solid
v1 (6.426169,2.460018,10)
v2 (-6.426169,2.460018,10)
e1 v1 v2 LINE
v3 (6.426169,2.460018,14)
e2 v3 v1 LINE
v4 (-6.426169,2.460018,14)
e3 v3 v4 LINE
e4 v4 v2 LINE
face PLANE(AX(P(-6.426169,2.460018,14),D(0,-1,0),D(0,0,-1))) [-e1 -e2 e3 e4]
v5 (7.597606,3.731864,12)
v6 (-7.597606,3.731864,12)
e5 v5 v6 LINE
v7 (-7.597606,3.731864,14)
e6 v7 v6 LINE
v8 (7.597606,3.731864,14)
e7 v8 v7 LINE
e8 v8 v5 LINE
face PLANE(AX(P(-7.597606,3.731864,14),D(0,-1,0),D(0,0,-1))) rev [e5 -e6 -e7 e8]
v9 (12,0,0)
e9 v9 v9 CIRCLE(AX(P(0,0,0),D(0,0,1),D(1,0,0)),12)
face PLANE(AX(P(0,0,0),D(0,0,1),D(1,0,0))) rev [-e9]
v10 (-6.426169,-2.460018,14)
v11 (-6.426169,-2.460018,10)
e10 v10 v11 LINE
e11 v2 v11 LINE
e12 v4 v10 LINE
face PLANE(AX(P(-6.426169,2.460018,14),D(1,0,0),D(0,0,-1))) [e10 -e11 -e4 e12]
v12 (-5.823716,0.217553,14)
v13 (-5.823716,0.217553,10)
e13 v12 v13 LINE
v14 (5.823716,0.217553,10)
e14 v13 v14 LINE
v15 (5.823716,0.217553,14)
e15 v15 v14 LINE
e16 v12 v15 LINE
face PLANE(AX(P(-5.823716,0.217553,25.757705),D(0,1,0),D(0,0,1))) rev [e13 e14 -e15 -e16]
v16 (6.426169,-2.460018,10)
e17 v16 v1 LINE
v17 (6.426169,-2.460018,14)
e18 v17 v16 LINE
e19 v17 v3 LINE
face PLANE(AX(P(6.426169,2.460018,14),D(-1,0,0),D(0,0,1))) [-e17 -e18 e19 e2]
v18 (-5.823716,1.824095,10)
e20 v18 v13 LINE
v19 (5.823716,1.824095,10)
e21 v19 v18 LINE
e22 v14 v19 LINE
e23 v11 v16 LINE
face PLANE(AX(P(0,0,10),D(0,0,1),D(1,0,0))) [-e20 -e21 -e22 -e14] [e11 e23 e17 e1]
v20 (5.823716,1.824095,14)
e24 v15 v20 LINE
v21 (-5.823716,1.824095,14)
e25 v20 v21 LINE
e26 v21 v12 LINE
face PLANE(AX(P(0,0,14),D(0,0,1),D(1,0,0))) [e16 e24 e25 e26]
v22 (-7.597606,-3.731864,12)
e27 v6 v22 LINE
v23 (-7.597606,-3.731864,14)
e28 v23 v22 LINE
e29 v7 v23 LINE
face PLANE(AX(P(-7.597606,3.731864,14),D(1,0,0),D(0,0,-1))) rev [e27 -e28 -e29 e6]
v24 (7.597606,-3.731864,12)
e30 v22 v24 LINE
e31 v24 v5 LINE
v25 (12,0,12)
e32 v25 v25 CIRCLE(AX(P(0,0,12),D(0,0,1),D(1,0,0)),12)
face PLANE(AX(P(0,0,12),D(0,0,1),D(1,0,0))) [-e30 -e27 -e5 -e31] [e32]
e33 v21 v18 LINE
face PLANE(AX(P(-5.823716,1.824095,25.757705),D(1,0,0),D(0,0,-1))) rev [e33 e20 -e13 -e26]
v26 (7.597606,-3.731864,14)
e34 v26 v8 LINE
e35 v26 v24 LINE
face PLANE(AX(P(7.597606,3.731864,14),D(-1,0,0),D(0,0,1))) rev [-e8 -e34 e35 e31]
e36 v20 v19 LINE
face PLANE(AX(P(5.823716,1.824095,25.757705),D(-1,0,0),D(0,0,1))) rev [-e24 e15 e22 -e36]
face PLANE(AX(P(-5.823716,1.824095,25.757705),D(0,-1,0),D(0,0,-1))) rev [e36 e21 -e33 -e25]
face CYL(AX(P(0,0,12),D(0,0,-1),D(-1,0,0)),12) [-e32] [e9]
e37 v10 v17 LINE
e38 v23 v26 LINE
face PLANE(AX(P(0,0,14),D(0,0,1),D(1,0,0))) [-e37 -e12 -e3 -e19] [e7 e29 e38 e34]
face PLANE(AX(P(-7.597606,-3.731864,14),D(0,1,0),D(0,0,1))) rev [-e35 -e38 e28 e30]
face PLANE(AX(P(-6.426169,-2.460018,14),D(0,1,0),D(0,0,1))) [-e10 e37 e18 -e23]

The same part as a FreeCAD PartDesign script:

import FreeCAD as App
import Part
import Sketcher

V = App.Vector
Q = App.Units.Quantity

doc = App.newDocument("Part")
body = doc.addObject("PartDesign::Body", "Body")

# Sketch on XY plane
sketch1 = body.newObject("Sketcher::SketchObject", "Sketch")
sketch1.AttachmentSupport = (doc.getObject("XY_Plane"), [""])
sketch1.MapMode = "FlatFace"
sketch1.addGeometry(Part.Circle(V(0, 0, 0), V(0, 0, 1), 12), False)
sketch1.addConstraint([
    Sketcher.Constraint("Coincident", 0, 3, -1, 1),
    Sketcher.Constraint("Diameter", 0, Q("24 mm")),
])
pad1 = body.newObject("PartDesign::Pad", "Pad")
pad1.Profile = sketch1
pad1.Length = 12

# Sketch on XY plane
sketch2 = body.newObject("Sketcher::SketchObject", "Sketch001")
sketch2.AttachmentSupport = (doc.getObject("XY_Plane"), [""])
sketch2.MapMode = "FlatFace"
sketch2.AttachmentOffset = App.Placement(V(0, 0, 12), App.Rotation())
sketch2.addGeometry([
    Part.LineSegment(V(-7.597606, 3.731864, 0), V(-7.597606, -3.731864, 0)),  # 0
    Part.LineSegment(V(-7.597606, -3.731864, 0), V(7.597606, -3.731864, 0)),  # 1
    Part.LineSegment(V(7.597606, -3.731864, 0), V(7.597606, 3.731864, 0)),  # 2
    Part.LineSegment(V(7.597606, 3.731864, 0), V(-7.597606, 3.731864, 0)),  # 3
    Part.LineSegment(V(6.426169, -2.460018, 0), V(-6.426169, -2.460018, 0)),  # 4
    Part.LineSegment(V(-6.426169, -2.460018, 0), V(-6.426169, 2.460018, 0)),  # 5
    Part.LineSegment(V(-6.426169, 2.460018, 0), V(6.426169, 2.460018, 0)),  # 6
    Part.LineSegment(V(6.426169, 2.460018, 0), V(6.426169, -2.460018, 0)),  # 7
], False)
sketch2.addConstraint([
    Sketcher.Constraint("Coincident", 0, 2, 1, 1),
    Sketcher.Constraint("Coincident", 1, 2, 2, 1),
    Sketcher.Constraint("Coincident", 2, 2, 3, 1),
    Sketcher.Constraint("Coincident", 3, 2, 0, 1),
    Sketcher.Constraint("Coincident", 4, 2, 5, 1),
    Sketcher.Constraint("Coincident", 5, 2, 6, 1),
    Sketcher.Constraint("Coincident", 6, 2, 7, 1),
    Sketcher.Constraint("Coincident", 7, 2, 4, 1),
    Sketcher.Constraint("Vertical", 0),
    Sketcher.Constraint("Horizontal", 1),
    Sketcher.Constraint("Vertical", 2),
    Sketcher.Constraint("Horizontal", 3),
    Sketcher.Constraint("Horizontal", 4),
    Sketcher.Constraint("Vertical", 5),
    Sketcher.Constraint("Horizontal", 6),
    Sketcher.Constraint("Vertical", 7),
    Sketcher.Constraint("Symmetric", 0, 2, 2, 2, -1, 1),
    Sketcher.Constraint("Symmetric", 4, 2, 6, 2, -1, 1),
    Sketcher.Constraint("DistanceX", 4, 2, 4, 1, Q("12.852338 mm")),
    Sketcher.Constraint("DistanceX", 1, 1, 1, 2, Q("15.195212 mm")),
    Sketcher.Constraint("DistanceY", 0, 2, 0, 1, Q("7.463728 mm")),
    Sketcher.Constraint("DistanceY", 5, 1, 5, 2, Q("4.920036 mm")),
])
pad2 = body.newObject("PartDesign::Pad", "Pad001")
pad2.Profile = sketch2
pad2.Length = 2

# Sketch on XY plane
sketch3 = body.newObject("Sketcher::SketchObject", "Sketch002")
sketch3.AttachmentSupport = (doc.getObject("XY_Plane"), [""])
sketch3.MapMode = "FlatFace"
sketch3.AttachmentOffset = App.Placement(V(0, 0, 12), App.Rotation())
sketch3.addGeometry([
    Part.LineSegment(V(-5.823716, 1.824095, 0), V(-5.823716, 0.217553, 0)),
    Part.LineSegment(V(-5.823716, 0.217553, 0), V(5.823716, 0.217553, 0)),
    Part.LineSegment(V(5.823716, 0.217553, 0), V(5.823716, 1.824095, 0)),
    Part.LineSegment(V(5.823716, 1.824095, 0), V(-5.823716, 1.824095, 0)),
], False)
sketch3.addConstraint([
    Sketcher.Constraint("Coincident", 0, 2, 1, 1),
    Sketcher.Constraint("Coincident", 1, 2, 2, 1),
    Sketcher.Constraint("Coincident", 2, 2, 3, 1),
    Sketcher.Constraint("Coincident", 3, 2, 0, 1),
    Sketcher.Constraint("Vertical", 0),
    Sketcher.Constraint("Horizontal", 1),
    Sketcher.Constraint("Vertical", 2),
    Sketcher.Constraint("Horizontal", 3),
    Sketcher.Constraint("DistanceX", 1, 1, 1, 2, Q("11.647431 mm")),
    Sketcher.Constraint("DistanceY", 0, 2, 0, 1, Q("1.606542 mm")),
    Sketcher.Constraint("DistanceX", 0, 2, -1, 1, Q("5.823716 mm")),
    Sketcher.Constraint("DistanceY", -1, 1, 0, 2, Q("0.217553 mm")),
])
pad3 = body.newObject("PartDesign::Pad", "Pad002")
pad3.Profile = sketch3
pad3.Length = 2

# Sketch on XY plane
sketch4 = body.newObject("Sketcher::SketchObject", "Sketch003")
sketch4.AttachmentSupport = (doc.getObject("XY_Plane"), [""])
sketch4.MapMode = "FlatFace"
sketch4.AttachmentOffset = App.Placement(V(0, 0, 12), App.Rotation())
sketch4.addGeometry([
    Part.LineSegment(V(-6.426169, 2.460018, 0), V(-6.426169, -2.460018, 0)),  # 0
    Part.LineSegment(V(-6.426169, -2.460018, 0), V(6.426169, -2.460018, 0)),  # 1
    Part.LineSegment(V(6.426169, -2.460018, 0), V(6.426169, 2.460018, 0)),  # 2
    Part.LineSegment(V(6.426169, 2.460018, 0), V(-6.426169, 2.460018, 0)),  # 3
    Part.LineSegment(V(5.823716, 0.217553, 0), V(-5.823716, 0.217553, 0)),  # 4
    Part.LineSegment(V(-5.823716, 0.217553, 0), V(-5.823716, 1.824095, 0)),  # 5
    Part.LineSegment(V(-5.823716, 1.824095, 0), V(5.823716, 1.824095, 0)),  # 6
    Part.LineSegment(V(5.823716, 1.824095, 0), V(5.823716, 0.217553, 0)),  # 7
], False)
sketch4.addConstraint([
    Sketcher.Constraint("Coincident", 0, 2, 1, 1),
    Sketcher.Constraint("Coincident", 1, 2, 2, 1),
    Sketcher.Constraint("Coincident", 2, 2, 3, 1),
    Sketcher.Constraint("Coincident", 3, 2, 0, 1),
    Sketcher.Constraint("Coincident", 4, 2, 5, 1),
    Sketcher.Constraint("Coincident", 5, 2, 6, 1),
    Sketcher.Constraint("Coincident", 6, 2, 7, 1),
    Sketcher.Constraint("Coincident", 7, 2, 4, 1),
    Sketcher.Constraint("Vertical", 0),
    Sketcher.Constraint("Horizontal", 1),
    Sketcher.Constraint("Vertical", 2),
    Sketcher.Constraint("Horizontal", 3),
    Sketcher.Constraint("Horizontal", 4),
    Sketcher.Constraint("Vertical", 5),
    Sketcher.Constraint("Horizontal", 6),
    Sketcher.Constraint("Vertical", 7),
    Sketcher.Constraint("Symmetric", 0, 2, 2, 2, -1, 1),
    Sketcher.Constraint("DistanceX", 1, 1, 1, 2, Q("12.852338 mm")),
    Sketcher.Constraint("DistanceX", 4, 2, 4, 1, Q("11.647431 mm")),
    Sketcher.Constraint("DistanceY", 0, 2, 0, 1, Q("4.920036 mm")),
    Sketcher.Constraint("DistanceY", 5, 1, 5, 2, Q("1.606542 mm")),
    Sketcher.Constraint("DistanceY", 0, 2, 4, 2, Q("2.67757 mm")),
    Sketcher.Constraint("DistanceX", 4, 2, -1, 1, Q("5.823716 mm")),
])
pocket1 = body.newObject("PartDesign::Pocket", "Pocket")
pocket1.Profile = sketch4
pocket1.Length = 2

doc.recompute()
